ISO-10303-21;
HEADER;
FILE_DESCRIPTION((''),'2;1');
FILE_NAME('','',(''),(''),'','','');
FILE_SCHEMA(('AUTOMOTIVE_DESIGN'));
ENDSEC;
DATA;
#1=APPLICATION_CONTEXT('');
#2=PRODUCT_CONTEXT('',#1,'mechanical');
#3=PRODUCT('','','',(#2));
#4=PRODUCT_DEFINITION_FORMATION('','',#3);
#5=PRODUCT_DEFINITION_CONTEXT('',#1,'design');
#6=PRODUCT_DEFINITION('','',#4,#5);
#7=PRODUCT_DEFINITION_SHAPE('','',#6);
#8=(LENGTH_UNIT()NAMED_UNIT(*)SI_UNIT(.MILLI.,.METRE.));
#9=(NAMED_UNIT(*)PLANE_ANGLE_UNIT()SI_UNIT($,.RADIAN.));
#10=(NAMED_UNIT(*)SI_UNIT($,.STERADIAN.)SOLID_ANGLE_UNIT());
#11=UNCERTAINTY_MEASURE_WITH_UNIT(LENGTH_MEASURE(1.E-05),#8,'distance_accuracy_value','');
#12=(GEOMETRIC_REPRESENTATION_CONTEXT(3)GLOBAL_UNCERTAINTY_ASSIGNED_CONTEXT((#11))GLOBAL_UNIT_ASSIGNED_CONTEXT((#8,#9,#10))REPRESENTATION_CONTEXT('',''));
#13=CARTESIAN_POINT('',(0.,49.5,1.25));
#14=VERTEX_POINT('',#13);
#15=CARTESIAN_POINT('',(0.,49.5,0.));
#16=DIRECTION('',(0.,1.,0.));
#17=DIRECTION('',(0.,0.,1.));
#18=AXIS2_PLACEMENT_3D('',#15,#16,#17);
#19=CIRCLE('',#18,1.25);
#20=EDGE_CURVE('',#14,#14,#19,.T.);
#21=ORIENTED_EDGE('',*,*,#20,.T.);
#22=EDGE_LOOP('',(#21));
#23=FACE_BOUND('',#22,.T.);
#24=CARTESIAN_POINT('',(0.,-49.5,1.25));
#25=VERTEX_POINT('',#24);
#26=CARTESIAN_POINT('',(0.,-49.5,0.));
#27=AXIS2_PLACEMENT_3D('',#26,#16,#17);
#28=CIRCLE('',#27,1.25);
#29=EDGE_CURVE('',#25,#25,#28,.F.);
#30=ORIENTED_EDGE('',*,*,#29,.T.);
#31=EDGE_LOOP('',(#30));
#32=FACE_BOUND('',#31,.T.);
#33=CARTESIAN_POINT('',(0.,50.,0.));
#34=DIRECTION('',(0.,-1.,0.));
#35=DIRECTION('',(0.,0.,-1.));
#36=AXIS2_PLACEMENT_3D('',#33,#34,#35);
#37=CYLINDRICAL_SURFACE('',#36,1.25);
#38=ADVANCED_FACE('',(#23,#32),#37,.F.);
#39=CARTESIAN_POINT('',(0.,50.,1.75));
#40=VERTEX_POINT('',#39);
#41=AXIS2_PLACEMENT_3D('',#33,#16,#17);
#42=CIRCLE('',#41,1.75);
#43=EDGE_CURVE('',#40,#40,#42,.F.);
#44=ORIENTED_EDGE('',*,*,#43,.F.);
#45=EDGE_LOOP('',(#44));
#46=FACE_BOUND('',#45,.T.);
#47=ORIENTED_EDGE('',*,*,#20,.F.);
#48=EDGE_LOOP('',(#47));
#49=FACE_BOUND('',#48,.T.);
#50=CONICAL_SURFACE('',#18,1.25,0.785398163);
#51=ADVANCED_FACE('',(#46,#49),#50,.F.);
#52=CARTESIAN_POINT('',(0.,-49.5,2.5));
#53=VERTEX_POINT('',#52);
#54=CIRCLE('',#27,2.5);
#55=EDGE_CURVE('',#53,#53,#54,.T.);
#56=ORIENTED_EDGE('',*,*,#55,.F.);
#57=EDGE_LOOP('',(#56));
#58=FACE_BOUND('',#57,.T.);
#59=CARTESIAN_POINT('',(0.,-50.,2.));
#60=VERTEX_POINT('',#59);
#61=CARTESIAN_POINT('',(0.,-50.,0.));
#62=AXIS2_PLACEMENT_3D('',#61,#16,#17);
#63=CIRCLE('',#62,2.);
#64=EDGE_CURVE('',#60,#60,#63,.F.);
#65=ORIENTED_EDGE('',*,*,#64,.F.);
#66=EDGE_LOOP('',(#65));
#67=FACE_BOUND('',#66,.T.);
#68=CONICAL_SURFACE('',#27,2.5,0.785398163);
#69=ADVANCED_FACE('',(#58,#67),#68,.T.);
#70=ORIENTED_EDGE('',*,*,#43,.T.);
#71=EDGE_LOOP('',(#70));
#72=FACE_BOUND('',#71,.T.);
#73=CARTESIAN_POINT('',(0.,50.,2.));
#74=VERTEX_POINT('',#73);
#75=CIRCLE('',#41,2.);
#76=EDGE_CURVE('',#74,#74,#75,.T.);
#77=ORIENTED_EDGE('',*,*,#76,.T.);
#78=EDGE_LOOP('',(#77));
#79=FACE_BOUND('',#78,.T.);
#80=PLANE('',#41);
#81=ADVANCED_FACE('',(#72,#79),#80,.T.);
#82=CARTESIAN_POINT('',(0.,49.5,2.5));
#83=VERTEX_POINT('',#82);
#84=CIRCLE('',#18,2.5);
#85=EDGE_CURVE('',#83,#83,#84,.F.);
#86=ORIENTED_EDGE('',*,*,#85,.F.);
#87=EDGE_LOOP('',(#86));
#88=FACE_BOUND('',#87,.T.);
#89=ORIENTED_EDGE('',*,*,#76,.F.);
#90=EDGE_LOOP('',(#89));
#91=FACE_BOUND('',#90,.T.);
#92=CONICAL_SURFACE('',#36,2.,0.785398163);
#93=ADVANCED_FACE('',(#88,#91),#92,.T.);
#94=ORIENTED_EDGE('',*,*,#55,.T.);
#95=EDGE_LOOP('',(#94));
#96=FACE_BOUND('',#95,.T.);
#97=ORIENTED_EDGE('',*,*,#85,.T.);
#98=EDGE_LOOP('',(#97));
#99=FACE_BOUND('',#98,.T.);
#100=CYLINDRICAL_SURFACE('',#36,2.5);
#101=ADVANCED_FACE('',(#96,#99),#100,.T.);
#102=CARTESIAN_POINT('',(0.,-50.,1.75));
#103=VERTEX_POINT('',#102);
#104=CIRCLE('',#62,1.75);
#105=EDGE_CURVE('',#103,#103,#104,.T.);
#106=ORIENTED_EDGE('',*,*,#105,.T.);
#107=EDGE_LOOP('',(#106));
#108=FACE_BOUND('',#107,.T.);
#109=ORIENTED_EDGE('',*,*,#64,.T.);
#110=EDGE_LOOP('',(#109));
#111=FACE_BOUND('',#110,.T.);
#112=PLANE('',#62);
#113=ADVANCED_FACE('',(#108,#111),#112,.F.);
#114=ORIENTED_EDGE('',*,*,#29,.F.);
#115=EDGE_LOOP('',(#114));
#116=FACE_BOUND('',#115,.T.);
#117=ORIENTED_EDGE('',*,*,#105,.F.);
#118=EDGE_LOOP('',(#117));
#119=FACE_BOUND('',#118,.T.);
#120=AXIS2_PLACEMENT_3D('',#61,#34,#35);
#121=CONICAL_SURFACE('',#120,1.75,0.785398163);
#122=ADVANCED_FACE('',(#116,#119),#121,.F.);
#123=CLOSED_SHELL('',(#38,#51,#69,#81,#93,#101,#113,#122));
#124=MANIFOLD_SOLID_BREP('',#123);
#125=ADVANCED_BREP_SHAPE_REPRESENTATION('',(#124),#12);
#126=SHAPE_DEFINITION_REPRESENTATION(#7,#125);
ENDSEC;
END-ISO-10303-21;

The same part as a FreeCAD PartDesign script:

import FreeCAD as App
import Part
import Sketcher
Q = App.Units.Quantity


def edges_at(feature, points):
    """Names of the edges that pass closest to the given points."""
    edges = feature.Shape.Edges
    near = lambda p: min(range(len(edges)), key=lambda i: edges[i].distToShape(Part.Vertex(*p))[0])
    return sorted({f"Edge{near(p) + 1}" for p in points})

doc = App.newDocument("Part")
body = doc.addObject("PartDesign::Body", "Body")

sketch1 = body.newObject("Sketcher::SketchObject", "Sketch")
sketch1.AttachmentSupport = (doc.getObject("XZ_Plane"), [""])
sketch1.MapMode = "FlatFace"
sketch1.addGeometry(Part.Circle(App.Vector(0, 0, 0), App.Vector(0, 0, 1), 2.5), False)
sketch1.addGeometry(Part.Circle(App.Vector(0, 0, 0), App.Vector(0, 0, 1), 1.2), False)
sketch1.addConstraint(Sketcher.Constraint("Coincident", 0, 3, -1, 1))
sketch1.addConstraint(Sketcher.Constraint("Coincident", 1, 3, -1, 1))
sketch1.addConstraint(Sketcher.Constraint("Diameter", 0, Q("5 mm")))
sketch1.addConstraint(Sketcher.Constraint("Diameter", 1, Q("2.5 mm")))
pad1 = body.newObject("PartDesign::Pad", "Pad")
pad1.Profile = sketch1
pad1.Length = 100
pad1.Midplane = True
doc.recompute()

chamfer = body.newObject("PartDesign::Chamfer", "Chamfer")
chamfer.Base = (pad1, edges_at(pad1, [
    (0, -50, -2.5),
    (0, 50, -2.5),
    (0, -50, -1.25),
    (0, 50, -1.25),
]))
chamfer.Size = 0.5

doc.recompute()
